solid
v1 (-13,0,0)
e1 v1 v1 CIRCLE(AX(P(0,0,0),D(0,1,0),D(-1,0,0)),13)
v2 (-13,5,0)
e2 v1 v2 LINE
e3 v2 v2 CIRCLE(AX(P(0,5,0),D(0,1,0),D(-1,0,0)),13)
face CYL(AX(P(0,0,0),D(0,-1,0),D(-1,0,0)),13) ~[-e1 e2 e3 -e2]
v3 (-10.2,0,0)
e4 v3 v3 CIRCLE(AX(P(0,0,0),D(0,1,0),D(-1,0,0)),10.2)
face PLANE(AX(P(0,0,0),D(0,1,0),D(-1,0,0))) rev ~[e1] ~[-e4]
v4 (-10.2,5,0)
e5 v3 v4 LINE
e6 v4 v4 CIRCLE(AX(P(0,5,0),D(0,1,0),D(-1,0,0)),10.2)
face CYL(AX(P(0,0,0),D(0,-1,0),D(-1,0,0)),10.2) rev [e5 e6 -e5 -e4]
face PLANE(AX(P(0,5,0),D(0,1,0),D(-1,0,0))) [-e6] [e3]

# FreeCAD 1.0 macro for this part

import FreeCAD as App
import Part
import Sketcher
Q = App.Units.Quantity

doc = App.newDocument("Part")
body = doc.addObject("PartDesign::Body", "Body")

sketch1 = body.newObject("Sketcher::SketchObject", "Sketch")
sketch1.AttachmentSupport = (doc.getObject("XZ_Plane"), [""])
sketch1.MapMode = "FlatFace"
sketch1.addGeometry([
    Part.Circle(App.Vector(0, 0, 0), App.Vector(0, 0, 1), 13),
    Part.Circle(App.Vector(0, 0, 0), App.Vector(0, 0, 1), 10),
], False)
sketch1.addConstraint([
    Sketcher.Constraint("Coincident", 0, 3, -1, 1),
    Sketcher.Constraint("Coincident", 1, 3, -1, 1),
    Sketcher.Constraint("Diameter", 0, Q("26 mm")),
    Sketcher.Constraint("Diameter", 1, Q("20.4 mm")),
])
pad1 = body.newObject("PartDesign::Pad", "Pad")
pad1.Profile = sketch1
pad1.Length = 5
pad1.Reversed = True

doc.recompute()
